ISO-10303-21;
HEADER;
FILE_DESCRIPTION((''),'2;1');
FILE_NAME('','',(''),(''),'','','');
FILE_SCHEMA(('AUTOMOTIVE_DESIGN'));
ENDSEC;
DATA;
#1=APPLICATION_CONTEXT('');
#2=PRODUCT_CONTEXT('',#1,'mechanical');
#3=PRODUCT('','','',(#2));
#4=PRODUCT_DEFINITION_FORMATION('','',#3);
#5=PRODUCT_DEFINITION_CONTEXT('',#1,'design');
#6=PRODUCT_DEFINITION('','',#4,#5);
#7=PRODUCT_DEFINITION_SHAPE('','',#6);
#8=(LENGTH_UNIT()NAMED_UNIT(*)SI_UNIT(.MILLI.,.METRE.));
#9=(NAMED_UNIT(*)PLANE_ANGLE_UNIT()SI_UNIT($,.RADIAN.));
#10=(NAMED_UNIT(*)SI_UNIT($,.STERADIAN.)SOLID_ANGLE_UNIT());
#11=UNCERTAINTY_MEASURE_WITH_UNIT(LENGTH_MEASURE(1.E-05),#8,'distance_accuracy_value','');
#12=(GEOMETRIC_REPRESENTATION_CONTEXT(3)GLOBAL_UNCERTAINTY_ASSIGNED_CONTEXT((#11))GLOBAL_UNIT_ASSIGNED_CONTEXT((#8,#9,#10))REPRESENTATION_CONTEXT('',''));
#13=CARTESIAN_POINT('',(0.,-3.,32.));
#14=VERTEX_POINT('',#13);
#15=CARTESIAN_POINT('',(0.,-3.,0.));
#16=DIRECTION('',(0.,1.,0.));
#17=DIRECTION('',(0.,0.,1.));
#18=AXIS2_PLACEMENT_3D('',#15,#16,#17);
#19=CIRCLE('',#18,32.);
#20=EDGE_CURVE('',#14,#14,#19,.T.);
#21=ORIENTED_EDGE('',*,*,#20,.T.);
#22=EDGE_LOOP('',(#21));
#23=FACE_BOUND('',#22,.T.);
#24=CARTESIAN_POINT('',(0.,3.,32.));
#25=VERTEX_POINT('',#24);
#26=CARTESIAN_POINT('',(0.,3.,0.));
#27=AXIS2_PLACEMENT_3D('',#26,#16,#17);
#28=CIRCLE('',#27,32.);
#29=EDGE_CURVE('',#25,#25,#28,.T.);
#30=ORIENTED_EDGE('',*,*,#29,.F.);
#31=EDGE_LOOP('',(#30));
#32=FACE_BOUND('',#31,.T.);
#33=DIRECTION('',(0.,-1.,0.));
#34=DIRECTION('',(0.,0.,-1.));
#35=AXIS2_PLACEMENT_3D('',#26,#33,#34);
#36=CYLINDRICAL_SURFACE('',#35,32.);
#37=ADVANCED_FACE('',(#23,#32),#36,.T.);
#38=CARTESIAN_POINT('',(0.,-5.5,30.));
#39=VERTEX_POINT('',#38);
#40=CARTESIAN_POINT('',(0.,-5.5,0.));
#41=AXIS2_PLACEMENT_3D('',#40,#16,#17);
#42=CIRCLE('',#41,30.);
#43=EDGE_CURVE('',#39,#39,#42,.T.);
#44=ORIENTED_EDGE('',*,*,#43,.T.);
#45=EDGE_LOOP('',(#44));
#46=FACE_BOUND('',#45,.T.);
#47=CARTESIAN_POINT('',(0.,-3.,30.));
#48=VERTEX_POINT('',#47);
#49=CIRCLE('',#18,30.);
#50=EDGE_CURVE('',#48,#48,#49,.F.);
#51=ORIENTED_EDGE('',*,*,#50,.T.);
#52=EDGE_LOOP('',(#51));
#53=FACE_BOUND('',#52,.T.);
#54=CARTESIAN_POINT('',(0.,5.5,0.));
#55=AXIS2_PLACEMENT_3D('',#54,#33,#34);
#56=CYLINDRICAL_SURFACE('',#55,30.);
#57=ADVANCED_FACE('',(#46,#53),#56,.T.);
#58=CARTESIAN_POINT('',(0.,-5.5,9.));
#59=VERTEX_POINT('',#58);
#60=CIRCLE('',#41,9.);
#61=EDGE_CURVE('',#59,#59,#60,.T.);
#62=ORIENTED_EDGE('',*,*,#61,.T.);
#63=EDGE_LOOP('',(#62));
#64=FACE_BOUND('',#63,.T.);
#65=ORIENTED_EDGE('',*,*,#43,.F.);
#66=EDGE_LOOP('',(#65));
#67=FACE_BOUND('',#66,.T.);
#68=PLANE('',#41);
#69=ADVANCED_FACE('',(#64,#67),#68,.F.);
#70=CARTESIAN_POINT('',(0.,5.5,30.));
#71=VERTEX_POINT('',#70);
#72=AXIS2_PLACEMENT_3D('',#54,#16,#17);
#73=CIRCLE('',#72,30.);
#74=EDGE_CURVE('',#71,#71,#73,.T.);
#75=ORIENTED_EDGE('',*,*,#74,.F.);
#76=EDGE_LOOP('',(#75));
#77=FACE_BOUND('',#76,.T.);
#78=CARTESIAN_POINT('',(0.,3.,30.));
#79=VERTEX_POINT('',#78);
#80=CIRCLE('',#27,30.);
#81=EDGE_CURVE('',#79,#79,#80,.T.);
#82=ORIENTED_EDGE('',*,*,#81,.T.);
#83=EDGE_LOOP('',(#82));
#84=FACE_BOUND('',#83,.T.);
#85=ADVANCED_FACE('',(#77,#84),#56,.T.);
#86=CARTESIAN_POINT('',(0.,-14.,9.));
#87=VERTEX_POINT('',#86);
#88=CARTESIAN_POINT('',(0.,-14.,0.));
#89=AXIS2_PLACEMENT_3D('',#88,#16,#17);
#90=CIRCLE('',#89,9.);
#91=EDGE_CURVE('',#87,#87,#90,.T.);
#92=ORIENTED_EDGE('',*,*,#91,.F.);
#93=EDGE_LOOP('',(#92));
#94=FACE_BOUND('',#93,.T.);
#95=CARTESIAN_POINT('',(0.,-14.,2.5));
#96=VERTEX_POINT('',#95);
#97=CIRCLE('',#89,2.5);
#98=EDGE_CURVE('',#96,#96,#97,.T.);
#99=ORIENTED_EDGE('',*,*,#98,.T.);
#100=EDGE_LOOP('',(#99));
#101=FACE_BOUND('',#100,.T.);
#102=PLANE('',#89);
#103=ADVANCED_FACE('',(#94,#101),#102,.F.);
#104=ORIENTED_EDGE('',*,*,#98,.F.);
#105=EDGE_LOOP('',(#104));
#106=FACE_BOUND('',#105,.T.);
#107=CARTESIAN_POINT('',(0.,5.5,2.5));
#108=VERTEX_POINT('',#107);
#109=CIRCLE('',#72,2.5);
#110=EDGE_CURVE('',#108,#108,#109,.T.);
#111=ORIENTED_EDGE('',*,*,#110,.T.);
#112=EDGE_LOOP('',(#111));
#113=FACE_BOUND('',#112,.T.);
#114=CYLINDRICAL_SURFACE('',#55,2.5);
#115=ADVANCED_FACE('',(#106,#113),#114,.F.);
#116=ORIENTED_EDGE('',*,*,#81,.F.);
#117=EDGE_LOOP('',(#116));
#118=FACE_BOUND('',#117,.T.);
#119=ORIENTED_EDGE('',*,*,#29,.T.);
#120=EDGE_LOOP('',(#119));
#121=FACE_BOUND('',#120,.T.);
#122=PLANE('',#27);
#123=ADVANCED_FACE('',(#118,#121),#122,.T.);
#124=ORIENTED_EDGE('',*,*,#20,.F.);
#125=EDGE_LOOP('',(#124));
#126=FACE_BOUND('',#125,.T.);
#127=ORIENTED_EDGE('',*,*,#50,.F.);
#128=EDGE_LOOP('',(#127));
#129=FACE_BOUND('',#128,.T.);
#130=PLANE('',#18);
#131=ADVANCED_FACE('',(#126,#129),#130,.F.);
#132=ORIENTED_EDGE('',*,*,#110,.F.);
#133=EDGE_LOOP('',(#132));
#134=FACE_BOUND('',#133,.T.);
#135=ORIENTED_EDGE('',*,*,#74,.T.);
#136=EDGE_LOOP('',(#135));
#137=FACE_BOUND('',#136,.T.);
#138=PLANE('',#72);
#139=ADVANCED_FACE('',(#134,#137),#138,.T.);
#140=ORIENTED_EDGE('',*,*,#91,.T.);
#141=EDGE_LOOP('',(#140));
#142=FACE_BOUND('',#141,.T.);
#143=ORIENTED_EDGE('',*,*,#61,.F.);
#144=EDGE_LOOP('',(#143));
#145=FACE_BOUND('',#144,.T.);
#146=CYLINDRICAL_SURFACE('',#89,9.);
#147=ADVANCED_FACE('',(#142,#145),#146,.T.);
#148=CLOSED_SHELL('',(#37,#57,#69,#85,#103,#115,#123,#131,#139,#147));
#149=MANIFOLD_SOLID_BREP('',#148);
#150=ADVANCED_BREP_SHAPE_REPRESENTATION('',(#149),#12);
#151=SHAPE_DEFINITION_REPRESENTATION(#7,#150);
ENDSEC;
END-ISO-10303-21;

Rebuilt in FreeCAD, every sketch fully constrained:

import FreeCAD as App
import Part
import Sketcher

V = App.Vector

doc = App.newDocument("Part")
body = doc.addObject("PartDesign::Body", "Body")

# Sketch on XZ plane
sketch1 = doc.addObject("Sketcher::SketchObject", "Sketch")
body.addObject(sketch1)
sketch1.AttachmentSupport = (doc.XZ_Plane, [""])
sketch1.MapMode = "FlatFace"
sketch1.addGeometry([
    Part.Circle(V(0, 0, 0), V(0, 0, 1), 32),
    Part.Circle(V(0, 0, 0), V(0, 0, 1), 30),
], False)
sketch1.addConstraint([
    Sketcher.Constraint("Coincident", 0, 3, -1, 1),
    Sketcher.Constraint("Coincident", 1, 3, -1, 1),
    Sketcher.Constraint("Diameter", 0, 64.0),
    Sketcher.Constraint("Diameter", 1, 60.0),
])
pad1 = doc.addObject("PartDesign::Pad", "Pad")
body.addObject(pad1)
pad1.Profile = sketch1
pad1.Length = 6
pad1.Midplane = True

# Sketch on XZ plane
sketch2 = doc.addObject("Sketcher::SketchObject", "Sketch001")
body.addObject(sketch2)
sketch2.AttachmentSupport = (doc.XZ_Plane, [""])
sketch2.MapMode = "FlatFace"
sketch2.addGeometry([
    Part.Circle(V(0, 0, 0), V(0, 0, 1), 30),
    Part.Circle(V(0, 0, 0), V(0, 0, 1), 9),
], False)
sketch2.addConstraint([
    Sketcher.Constraint("Coincident", 0, 3, -1, 1),
    Sketcher.Constraint("Coincident", 1, 3, -1, 1),
    Sketcher.Constraint("Diameter", 0, 60.0),
    Sketcher.Constraint("Diameter", 1, 18.0),
])
pad2 = doc.addObject("PartDesign::Pad", "Pad001")
body.addObject(pad2)
pad2.Profile = sketch2
pad2.Length = 11
pad2.Midplane = True

# Sketch on XZ plane
sketch3 = doc.addObject("Sketcher::SketchObject", "Sketch002")
body.addObject(sketch3)
sketch3.AttachmentSupport = (doc.XZ_Plane, [""])
sketch3.MapMode = "FlatFace"
sketch3.addGeometry([
    Part.Circle(V(0, 0, 0), V(0, 0, 1), 9),
    Part.Circle(V(0, 0, 0), V(0, 0, 1), 2.5),
], False)
sketch3.addConstraint([
    Sketcher.Constraint("Coincident", 0, 3, -1, 1),
    Sketcher.Constraint("Coincident", 1, 3, -1, 1),
    Sketcher.Constraint("Diameter", 0, 18.0),
    Sketcher.Constraint("Diameter", 1, 5.0),
])
pad3 = doc.addObject("PartDesign::Pad", "Pad002")
body.addObject(pad3)
pad3.Profile = sketch3
pad3.Length = 5.5
pad3.Reversed = True

# Sketch on XZ plane
sketch4 = doc.addObject("Sketcher::SketchObject", "Sketch003")
body.addObject(sketch4)
sketch4.AttachmentSupport = (doc.XZ_Plane, [""])
sketch4.MapMode = "FlatFace"
sketch4.AttachmentOffset = App.Placement(V(0, 0, 14), App.Rotation())
sketch4.addGeometry([
    Part.Circle(V(0, 0, 0), V(0, 0, 1), 9),
    Part.Circle(V(0, 0, 0), V(0, 0, 1), 2.5),
], False)
sketch4.addConstraint([
    Sketcher.Constraint("Coincident", 0, 3, -1, 1),
    Sketcher.Constraint("Coincident", 1, 3, -1, 1),
    Sketcher.Constraint("Diameter", 0, 18.0),
    Sketcher.Constraint("Diameter", 1, 5.0),
])
pad4 = doc.addObject("PartDesign::Pad", "Pad003")
body.addObject(pad4)
pad4.Profile = sketch4
pad4.Length = 14
pad4.Reversed = True

doc.recompute()
